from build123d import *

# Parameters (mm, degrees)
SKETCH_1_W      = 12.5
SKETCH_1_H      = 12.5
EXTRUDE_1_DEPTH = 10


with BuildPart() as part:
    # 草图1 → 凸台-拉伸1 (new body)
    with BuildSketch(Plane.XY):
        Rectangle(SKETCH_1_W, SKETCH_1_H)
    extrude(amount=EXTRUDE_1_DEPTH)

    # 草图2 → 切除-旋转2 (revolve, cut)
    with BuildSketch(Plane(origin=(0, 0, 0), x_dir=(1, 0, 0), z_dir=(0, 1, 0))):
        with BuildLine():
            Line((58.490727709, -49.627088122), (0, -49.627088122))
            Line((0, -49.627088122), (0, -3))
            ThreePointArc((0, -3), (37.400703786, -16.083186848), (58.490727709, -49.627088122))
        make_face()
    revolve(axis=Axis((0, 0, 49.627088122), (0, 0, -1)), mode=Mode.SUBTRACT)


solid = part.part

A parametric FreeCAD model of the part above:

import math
import FreeCAD as App
import Part
import Sketcher
from FreeCAD import Vector
Q = App.Units.Quantity


def add_polygon(sketch, points):
    """Adds a closed chain of lines whose ends are joined by coincident constraints."""
    first, n = sketch.GeometryCount, len(points)
    for a, b in zip(points, points[1:] + points[:1]):
        sketch.addGeometry(Part.LineSegment(App.Vector(*a, 0), App.Vector(*b, 0)), False)
    for i in range(n):
        sketch.addConstraint(Sketcher.Constraint("Coincident", first + i, 2, first + (i + 1) % n, 1))

doc = App.newDocument("Part")
body = doc.addObject("PartDesign::Body", "Body")

sketch1 = body.newObject("Sketcher::SketchObject", "Sketch")
sketch1.AttachmentSupport = (doc.getObject("XY_Plane"), [""])
sketch1.MapMode = "FlatFace"
add_polygon(sketch1, [(-6, 6), (-6, -6), (6, -6), (6, 6)])
sketch1.addConstraint([
    Sketcher.Constraint("Vertical", 0),
    Sketcher.Constraint("Horizontal", 1),
    Sketcher.Constraint("Vertical", 2),
    Sketcher.Constraint("Horizontal", 3),
    Sketcher.Constraint("Symmetric", 0, 2, 2, 2, -1, 1),
    Sketcher.Constraint("Equal", 3, 0),
    Sketcher.Constraint("DistanceX", 1, 1, 1, 2, Q("12.5 mm")),
])
pad1 = body.newObject("PartDesign::Pad", "Pad")
pad1.Profile = sketch1
pad1.Length = 10

sketch2 = body.newObject("Sketcher::SketchObject", "Sketch001")
sketch2.AttachmentSupport = (doc.getObject("XZ_Plane"), [""])
sketch2.MapMode = "FlatFace"
sketch2.addGeometry([
    Part.LineSegment(Vector(0, 50, 0), Vector(58, 50, 0)),
    Part.ArcOfCircle(Part.Circle(Vector(0, 63, 0), Vector(0, 0, 1), 60), math.radians(-90), math.radians(-13)),
    Part.LineSegment(Vector(0, 3, 0), Vector(0, 50, 0)),
], False)
sketch2.addConstraint([
    Sketcher.Constraint("Coincident", 0, 2, 1, 2),
    Sketcher.Constraint("Coincident", 1, 1, 2, 1),
    Sketcher.Constraint("Coincident", 2, 2, 0, 1),
    Sketcher.Constraint("Horizontal", 0),
    Sketcher.Constraint("Vertical", 2),
    Sketcher.Constraint("PointOnObject", 1, 3, -2),
    Sketcher.Constraint("PointOnObject", 1, 1, -2),
    Sketcher.Constraint("Radius", 1, Q("60 mm")),
    Sketcher.Constraint("DistanceY", -1, 1, 1, 3, Q("63 mm")),
    Sketcher.Constraint("DistanceY", 2, 1, 2, 2, Q("46.627088 mm")),
])
groove = body.newObject("PartDesign::Groove", "Groove")
groove.Profile = sketch2
groove.ReferenceAxis = (sketch2, ["V_Axis"])
groove.Angle = 360

doc.recompute()
